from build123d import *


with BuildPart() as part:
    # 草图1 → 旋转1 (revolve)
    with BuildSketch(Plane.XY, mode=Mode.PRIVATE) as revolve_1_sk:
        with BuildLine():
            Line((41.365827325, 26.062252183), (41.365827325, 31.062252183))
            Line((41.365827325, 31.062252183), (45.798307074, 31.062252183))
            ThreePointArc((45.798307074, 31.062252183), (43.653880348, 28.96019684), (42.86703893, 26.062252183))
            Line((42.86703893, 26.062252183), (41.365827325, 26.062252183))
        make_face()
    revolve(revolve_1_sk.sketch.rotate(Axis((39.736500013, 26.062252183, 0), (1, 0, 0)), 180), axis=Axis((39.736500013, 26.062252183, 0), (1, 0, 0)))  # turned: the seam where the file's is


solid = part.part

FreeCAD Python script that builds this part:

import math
import FreeCAD as App
import Part
import Sketcher
Q = App.Units.Quantity

doc = App.newDocument("Part")
params = doc.addObject("Spreadsheet::Sheet", "Params")
for row, (alias, value) in enumerate([
    ("sketch1_height", "5 mm"),
    ("sketch1_radius", "5.73 mm"),
    ("revolution_angle", "360 deg"),
], start=1):
    params.set(f"A{row}", alias)
    params.set(f"B{row}", "=" + value)
    params.setAlias(f"B{row}", alias)

body = doc.addObject("PartDesign::Body", "Body")

sketch1 = doc.addObject("Sketcher::SketchObject", "Sketch")
body.addObject(sketch1)
sketch1.AttachmentSupport = (doc.XY_Plane, [""])
sketch1.MapMode = "FlatFace"
sketch1.addGeometry([
    Part.LineSegment(App.Vector(41.4, 31.1, 0), App.Vector(41.4, 26.1, 0)),
    Part.LineSegment(App.Vector(41.4, 26.1, 0), App.Vector(42.9, 26.1, 0)),
    Part.ArcOfCircle(Part.Circle(App.Vector(48.6, 26.1, 0), App.Vector(0, 0, 1), 5.7), math.radians(119), math.radians(180)),
    Part.LineSegment(App.Vector(45.8, 31.1, 0), App.Vector(41.4, 31.1, 0)),
], False)
sketch1.addGeometry(Part.LineSegment(App.Vector(41.4, 26.1, 0), App.Vector(48.6, 26.1, 0)), True)
sketch1.addConstraint([
    Sketcher.Constraint("Coincident", 0, 2, 1, 1),
    Sketcher.Constraint("Coincident", 1, 2, 2, 2),
    Sketcher.Constraint("Coincident", 2, 1, 3, 1),
    Sketcher.Constraint("Coincident", 3, 2, 0, 1),
    Sketcher.Constraint("Vertical", 0),
    Sketcher.Constraint("Horizontal", 1),
    Sketcher.Constraint("Horizontal", 3),
    Sketcher.Constraint("Horizontal", 4),
    Sketcher.Constraint("Coincident", 4, 1, 0, 2),
    Sketcher.Constraint("Coincident", 4, 2, 2, 3),
    Sketcher.Constraint("DistanceY", 0, 2, 0, 1, Q("5 mm")),
    Sketcher.Constraint("Radius", 2, Q("5.73 mm")),
    Sketcher.Constraint("DistanceX", 1, 1, 1, 2, Q("1.501212 mm")),
    Sketcher.Constraint("DistanceX", -1, 1, 2, 3, Q("48.597039 mm")),
    Sketcher.Constraint("DistanceY", -1, 1, 2, 3, Q("26.062252 mm")),
])
sketch1.setExpression("Constraints[10]", "Params.sketch1_height")
sketch1.setExpression("Constraints[11]", "Params.sketch1_radius")
revolution = doc.addObject("PartDesign::Revolution", "Revolution")
body.addObject(revolution)
revolution.Profile = sketch1
revolution.ReferenceAxis = (sketch1, ["Axis0"])
revolution.setExpression("Angle", "Params.revolution_angle")

doc.recompute()
